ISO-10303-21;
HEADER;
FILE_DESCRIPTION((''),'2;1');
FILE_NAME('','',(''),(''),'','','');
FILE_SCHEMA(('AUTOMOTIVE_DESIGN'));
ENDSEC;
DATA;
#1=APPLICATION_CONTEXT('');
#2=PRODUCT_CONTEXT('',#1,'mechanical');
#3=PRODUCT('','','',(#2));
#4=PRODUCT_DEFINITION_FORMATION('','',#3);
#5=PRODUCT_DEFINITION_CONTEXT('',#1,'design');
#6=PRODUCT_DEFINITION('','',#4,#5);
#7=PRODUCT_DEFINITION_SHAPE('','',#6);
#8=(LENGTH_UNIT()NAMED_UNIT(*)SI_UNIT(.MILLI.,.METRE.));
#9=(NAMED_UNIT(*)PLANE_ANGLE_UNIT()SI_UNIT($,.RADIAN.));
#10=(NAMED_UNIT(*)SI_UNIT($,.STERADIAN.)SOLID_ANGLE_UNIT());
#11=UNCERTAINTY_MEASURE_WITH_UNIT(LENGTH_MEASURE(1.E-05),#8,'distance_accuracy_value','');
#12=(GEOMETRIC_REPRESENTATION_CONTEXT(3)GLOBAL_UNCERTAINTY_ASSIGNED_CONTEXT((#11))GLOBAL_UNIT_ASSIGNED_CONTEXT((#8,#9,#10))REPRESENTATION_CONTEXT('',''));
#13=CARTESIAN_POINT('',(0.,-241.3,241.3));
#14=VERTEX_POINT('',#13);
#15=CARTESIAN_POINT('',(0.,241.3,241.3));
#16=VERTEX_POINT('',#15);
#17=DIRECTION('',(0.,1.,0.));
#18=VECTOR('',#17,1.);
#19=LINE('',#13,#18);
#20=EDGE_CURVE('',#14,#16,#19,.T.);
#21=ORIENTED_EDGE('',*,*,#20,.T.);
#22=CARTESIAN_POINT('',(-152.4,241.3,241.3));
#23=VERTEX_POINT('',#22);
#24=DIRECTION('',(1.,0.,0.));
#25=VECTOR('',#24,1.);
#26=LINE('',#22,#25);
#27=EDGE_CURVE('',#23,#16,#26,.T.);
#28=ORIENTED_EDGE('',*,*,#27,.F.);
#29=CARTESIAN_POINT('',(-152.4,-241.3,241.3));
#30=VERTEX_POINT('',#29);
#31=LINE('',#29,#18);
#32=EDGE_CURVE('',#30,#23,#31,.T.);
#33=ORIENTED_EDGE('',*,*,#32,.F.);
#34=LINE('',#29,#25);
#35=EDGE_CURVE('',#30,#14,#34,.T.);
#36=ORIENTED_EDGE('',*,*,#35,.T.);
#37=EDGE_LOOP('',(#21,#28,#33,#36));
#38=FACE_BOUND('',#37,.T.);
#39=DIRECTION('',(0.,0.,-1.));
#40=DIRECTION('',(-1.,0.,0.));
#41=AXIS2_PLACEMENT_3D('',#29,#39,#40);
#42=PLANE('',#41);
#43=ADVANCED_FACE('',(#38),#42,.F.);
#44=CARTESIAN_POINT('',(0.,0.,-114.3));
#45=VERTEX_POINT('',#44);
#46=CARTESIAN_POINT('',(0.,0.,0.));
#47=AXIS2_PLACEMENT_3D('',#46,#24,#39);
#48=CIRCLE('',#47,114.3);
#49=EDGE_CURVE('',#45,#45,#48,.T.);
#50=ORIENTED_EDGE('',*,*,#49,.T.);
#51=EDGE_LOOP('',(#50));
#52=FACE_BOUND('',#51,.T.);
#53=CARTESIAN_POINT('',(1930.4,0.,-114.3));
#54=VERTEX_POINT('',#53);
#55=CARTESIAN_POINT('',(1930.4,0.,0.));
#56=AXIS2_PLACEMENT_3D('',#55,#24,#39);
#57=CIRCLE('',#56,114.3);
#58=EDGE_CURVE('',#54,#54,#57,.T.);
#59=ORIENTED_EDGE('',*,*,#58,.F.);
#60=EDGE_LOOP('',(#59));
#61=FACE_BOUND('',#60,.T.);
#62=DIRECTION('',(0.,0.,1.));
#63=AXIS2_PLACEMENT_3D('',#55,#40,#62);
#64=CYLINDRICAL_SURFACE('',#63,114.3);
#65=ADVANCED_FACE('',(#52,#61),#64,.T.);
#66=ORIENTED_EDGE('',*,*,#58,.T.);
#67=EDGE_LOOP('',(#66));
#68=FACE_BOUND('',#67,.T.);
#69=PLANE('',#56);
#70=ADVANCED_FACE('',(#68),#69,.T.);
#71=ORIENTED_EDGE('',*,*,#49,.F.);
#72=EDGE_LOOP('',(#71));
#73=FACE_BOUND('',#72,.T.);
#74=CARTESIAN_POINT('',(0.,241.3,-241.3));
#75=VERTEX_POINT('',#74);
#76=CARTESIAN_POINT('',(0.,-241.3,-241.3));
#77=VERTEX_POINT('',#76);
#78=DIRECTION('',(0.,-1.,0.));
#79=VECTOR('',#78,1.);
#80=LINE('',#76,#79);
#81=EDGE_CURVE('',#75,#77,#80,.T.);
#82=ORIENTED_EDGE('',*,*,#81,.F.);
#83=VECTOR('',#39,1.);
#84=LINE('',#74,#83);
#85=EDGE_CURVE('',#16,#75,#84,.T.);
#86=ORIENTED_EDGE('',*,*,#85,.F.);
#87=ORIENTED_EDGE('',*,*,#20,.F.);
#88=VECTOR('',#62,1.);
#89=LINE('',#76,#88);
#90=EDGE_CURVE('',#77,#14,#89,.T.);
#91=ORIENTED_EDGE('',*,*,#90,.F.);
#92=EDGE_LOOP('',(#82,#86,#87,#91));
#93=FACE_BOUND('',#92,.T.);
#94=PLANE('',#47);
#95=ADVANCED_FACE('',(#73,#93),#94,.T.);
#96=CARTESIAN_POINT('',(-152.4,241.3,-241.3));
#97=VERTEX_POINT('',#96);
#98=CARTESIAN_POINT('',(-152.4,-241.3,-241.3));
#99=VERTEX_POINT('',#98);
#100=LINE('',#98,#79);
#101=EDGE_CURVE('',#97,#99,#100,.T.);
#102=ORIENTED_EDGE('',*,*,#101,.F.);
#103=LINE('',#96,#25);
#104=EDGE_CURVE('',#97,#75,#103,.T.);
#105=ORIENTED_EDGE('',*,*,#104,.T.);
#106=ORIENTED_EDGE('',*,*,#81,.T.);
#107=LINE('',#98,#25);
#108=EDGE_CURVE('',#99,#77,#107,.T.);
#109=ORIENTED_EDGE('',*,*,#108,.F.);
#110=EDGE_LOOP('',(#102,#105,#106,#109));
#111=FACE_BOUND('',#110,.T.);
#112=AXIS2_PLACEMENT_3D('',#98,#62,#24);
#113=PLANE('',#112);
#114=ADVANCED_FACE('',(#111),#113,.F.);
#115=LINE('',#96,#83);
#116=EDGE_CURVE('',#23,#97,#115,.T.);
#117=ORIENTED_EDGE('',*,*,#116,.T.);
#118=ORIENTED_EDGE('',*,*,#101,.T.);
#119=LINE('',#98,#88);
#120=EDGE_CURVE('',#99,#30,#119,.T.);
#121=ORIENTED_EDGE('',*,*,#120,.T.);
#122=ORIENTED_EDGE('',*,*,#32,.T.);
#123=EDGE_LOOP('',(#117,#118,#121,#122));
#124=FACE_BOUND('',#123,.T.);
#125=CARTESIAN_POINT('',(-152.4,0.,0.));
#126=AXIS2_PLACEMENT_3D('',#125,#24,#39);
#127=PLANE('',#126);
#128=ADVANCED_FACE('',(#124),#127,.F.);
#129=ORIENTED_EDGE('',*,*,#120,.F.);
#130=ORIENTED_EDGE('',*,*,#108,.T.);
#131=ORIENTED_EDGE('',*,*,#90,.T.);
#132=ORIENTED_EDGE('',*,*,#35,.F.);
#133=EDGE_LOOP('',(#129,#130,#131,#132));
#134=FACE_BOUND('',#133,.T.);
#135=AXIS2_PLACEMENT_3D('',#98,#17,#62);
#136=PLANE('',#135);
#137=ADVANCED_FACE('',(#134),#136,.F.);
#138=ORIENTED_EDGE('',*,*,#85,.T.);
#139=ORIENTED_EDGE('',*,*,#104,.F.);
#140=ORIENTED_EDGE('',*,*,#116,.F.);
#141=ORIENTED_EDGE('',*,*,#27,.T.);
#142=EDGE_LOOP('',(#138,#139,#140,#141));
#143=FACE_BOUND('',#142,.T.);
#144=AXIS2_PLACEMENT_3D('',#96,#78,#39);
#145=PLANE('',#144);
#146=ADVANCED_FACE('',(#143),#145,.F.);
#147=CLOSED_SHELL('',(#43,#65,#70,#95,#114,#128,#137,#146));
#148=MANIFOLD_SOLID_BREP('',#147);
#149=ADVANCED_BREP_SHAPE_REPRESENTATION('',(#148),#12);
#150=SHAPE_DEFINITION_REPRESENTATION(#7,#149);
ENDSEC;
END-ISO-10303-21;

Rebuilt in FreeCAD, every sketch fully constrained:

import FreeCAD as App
import Part
import Sketcher
Q = App.Units.Quantity

doc = App.newDocument("Part")
body = doc.addObject("PartDesign::Body", "Body")

sketch1 = body.newObject("Sketcher::SketchObject", "Sketch")
sketch1.AttachmentSupport = (doc.getObject("YZ_Plane"), [""])
sketch1.MapMode = "FlatFace"
sketch1.addGeometry(Part.Circle(App.Vector(0, 0, 0), App.Vector(0, 0, 1), 114), False)
sketch1.addConstraint([
    Sketcher.Constraint("Coincident", 0, 3, -1, 1),
    Sketcher.Constraint("Diameter", 0, Q("9 in")),
])
pad1 = body.newObject("PartDesign::Pad", "Pad")
pad1.Profile = sketch1
pad1.Length = Q("76 in")

sketch2 = body.newObject("Sketcher::SketchObject", "Sketch001")
sketch2.AttachmentSupport = (doc.getObject("YZ_Plane"), [""])
sketch2.MapMode = "FlatFace"
sketch2.addGeometry([
    Part.LineSegment(App.Vector(241, -241, 0), App.Vector(-241, -241, 0)),
    Part.LineSegment(App.Vector(-241, -241, 0), App.Vector(-241, 241, 0)),
    Part.LineSegment(App.Vector(-241, 241, 0), App.Vector(241, 241, 0)),
    Part.LineSegment(App.Vector(241, 241, 0), App.Vector(241, -241, 0)),
], False)
sketch2.addConstraint([
    Sketcher.Constraint("Coincident", 0, 2, 1, 1),
    Sketcher.Constraint("Coincident", 1, 2, 2, 1),
    Sketcher.Constraint("Coincident", 2, 2, 3, 1),
    Sketcher.Constraint("Coincident", 3, 2, 0, 1),
    Sketcher.Constraint("Horizontal", 0),
    Sketcher.Constraint("Vertical", 1),
    Sketcher.Constraint("Horizontal", 2),
    Sketcher.Constraint("Vertical", 3),
    Sketcher.Constraint("Symmetric", 0, 2, 2, 2, -1, 1),
    Sketcher.Constraint("Equal", 2, 1),
    Sketcher.Constraint("DistanceX", 0, 2, 0, 1, Q("19 in")),
])
pad2 = body.newObject("PartDesign::Pad", "Pad001")
pad2.Profile = sketch2
pad2.Length = Q("6 in")
pad2.Reversed = True

doc.recompute()
